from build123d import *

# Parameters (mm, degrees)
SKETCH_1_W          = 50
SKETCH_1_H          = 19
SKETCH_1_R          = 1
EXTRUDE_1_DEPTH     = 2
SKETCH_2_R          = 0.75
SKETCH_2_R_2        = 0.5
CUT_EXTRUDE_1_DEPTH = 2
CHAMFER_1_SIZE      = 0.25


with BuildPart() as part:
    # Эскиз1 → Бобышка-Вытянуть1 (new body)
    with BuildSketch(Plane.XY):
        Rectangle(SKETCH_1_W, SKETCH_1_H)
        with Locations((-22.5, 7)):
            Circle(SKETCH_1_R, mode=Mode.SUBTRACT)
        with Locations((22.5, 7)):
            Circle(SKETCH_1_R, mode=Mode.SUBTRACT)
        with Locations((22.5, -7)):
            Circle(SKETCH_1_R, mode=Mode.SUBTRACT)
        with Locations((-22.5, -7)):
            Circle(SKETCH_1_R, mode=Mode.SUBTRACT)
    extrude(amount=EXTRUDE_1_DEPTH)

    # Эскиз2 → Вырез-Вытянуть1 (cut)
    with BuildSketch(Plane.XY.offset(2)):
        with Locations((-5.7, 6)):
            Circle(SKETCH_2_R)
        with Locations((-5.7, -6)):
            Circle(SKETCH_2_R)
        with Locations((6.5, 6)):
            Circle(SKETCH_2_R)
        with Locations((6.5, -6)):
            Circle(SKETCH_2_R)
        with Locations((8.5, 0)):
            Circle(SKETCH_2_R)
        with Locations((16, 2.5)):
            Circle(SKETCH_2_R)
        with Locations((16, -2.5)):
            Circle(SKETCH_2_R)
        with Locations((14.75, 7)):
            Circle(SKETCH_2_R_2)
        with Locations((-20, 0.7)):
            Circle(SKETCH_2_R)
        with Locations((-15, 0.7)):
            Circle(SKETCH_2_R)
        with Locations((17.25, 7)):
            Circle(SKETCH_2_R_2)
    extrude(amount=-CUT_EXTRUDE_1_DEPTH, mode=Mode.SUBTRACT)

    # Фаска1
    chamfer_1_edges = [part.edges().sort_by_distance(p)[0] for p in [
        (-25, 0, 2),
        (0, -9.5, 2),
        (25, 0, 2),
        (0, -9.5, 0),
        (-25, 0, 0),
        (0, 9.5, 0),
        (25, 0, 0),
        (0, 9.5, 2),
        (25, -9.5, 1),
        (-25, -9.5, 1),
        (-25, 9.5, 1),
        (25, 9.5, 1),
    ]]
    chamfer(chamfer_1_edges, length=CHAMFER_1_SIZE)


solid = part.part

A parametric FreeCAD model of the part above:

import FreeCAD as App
import Part
import Sketcher
from FreeCAD import Vector


def edges_at(feature, points):
    """Names of the edges that pass closest to the given points."""
    edges = feature.Shape.Edges
    near = lambda p: min(range(len(edges)), key=lambda i: edges[i].distToShape(Part.Vertex(*p))[0])
    return sorted({f"Edge{near(p) + 1}" for p in points})

doc = App.newDocument("Part")
body = doc.addObject("PartDesign::Body", "Body")

# Sketch on XY plane
sketch1 = body.newObject("Sketcher::SketchObject", "Sketch")
sketch1.AttachmentSupport = (doc.getObject("XY_Plane"), [""])
sketch1.MapMode = "FlatFace"
sketch1.addGeometry(Part.LineSegment(Vector(-25, 9.5, 0), Vector(-25, -9.5, 0)), False)
sketch1.addGeometry(Part.LineSegment(Vector(-25, -9.5, 0), Vector(25, -9.5, 0)), False)
sketch1.addGeometry(Part.LineSegment(Vector(25, -9.5, 0), Vector(25, 9.5, 0)), False)
sketch1.addGeometry(Part.LineSegment(Vector(25, 9.5, 0), Vector(-25, 9.5, 0)), False)
sketch1.addGeometry(Part.Circle(Vector(-22.5, -7, 0), Vector(0, 0, 1), 1), False)
sketch1.addGeometry(Part.Circle(Vector(22.5, -7, 0), Vector(0, 0, 1), 1), False)
sketch1.addGeometry(Part.Circle(Vector(-22.5, 7, 0), Vector(0, 0, 1), 1), False)
sketch1.addGeometry(Part.Circle(Vector(22.5, 7, 0), Vector(0, 0, 1), 1), False)
sketch1.addConstraint(Sketcher.Constraint("Coincident", 0, 2, 1, 1))
sketch1.addConstraint(Sketcher.Constraint("Coincident", 1, 2, 2, 1))
sketch1.addConstraint(Sketcher.Constraint("Coincident", 2, 2, 3, 1))
sketch1.addConstraint(Sketcher.Constraint("Coincident", 3, 2, 0, 1))
sketch1.addConstraint(Sketcher.Constraint("Vertical", 0))
sketch1.addConstraint(Sketcher.Constraint("Horizontal", 1))
sketch1.addConstraint(Sketcher.Constraint("Vertical", 2))
sketch1.addConstraint(Sketcher.Constraint("Horizontal", 3))
sketch1.addConstraint(Sketcher.Constraint("Equal", 4, 5))
sketch1.addConstraint(Sketcher.Constraint("Equal", 5, 6))
sketch1.addConstraint(Sketcher.Constraint("Equal", 6, 7))
sketch1.addConstraint(Sketcher.Constraint("Symmetric", 5, 3, 6, 3, -1, 1))
sketch1.addConstraint(Sketcher.Constraint("Symmetric", 4, 3, 7, 3, -1, 1))
sketch1.addConstraint(Sketcher.Constraint("Symmetric", 0, 2, 2, 2, -1, 1))
sketch1.addConstraint(Sketcher.Constraint("Symmetric", 4, 3, 5, 3, -2))
sketch1.addConstraint(Sketcher.Constraint("Diameter", 4, 2.0))
sketch1.addConstraint(Sketcher.Constraint("DistanceX", 1, 1, 1, 2, 50.0))
sketch1.addConstraint(Sketcher.Constraint("DistanceY", 0, 2, 0, 1, 19.0))
sketch1.addConstraint(Sketcher.Constraint("DistanceY", 4, 3, -1, 1, 7.0))
sketch1.addConstraint(Sketcher.Constraint("DistanceX", 4, 3, 5, 3, 45.0))
pad1 = body.newObject("PartDesign::Pad", "Pad")
pad1.Profile = sketch1
pad1.Length = 2

# Sketch on XY plane
sketch2 = body.newObject("Sketcher::SketchObject", "Sketch001")
sketch2.AttachmentSupport = (doc.getObject("XY_Plane"), [""])
sketch2.MapMode = "FlatFace"
sketch2.AttachmentOffset = App.Placement(Vector(0, 0, 2), App.Rotation())
sketch2.addGeometry(Part.Circle(Vector(-5.7, 6, 0), Vector(0, 0, 1), 0.8), False)
sketch2.addGeometry(Part.Circle(Vector(-5.7, -6, 0), Vector(0, 0, 1), 0.8), False)
sketch2.addGeometry(Part.Circle(Vector(6.5, 6, 0), Vector(0, 0, 1), 0.8), False)
sketch2.addGeometry(Part.Circle(Vector(6.5, -6, 0), Vector(0, 0, 1), 0.8), False)
sketch2.addGeometry(Part.Circle(Vector(8.5, 0, 0), Vector(0, 0, 1), 0.8), False)
sketch2.addGeometry(Part.Circle(Vector(16, 2.5, 0), Vector(0, 0, 1), 0.8), False)
sketch2.addGeometry(Part.Circle(Vector(16, -2.5, 0), Vector(0, 0, 1), 0.8), False)
sketch2.addGeometry(Part.Circle(Vector(14.8, 7, 0), Vector(0, 0, 1), 0.5), False)
sketch2.addGeometry(Part.Circle(Vector(-20, 0.7, 0), Vector(0, 0, 1), 0.8), False)
sketch2.addGeometry(Part.Circle(Vector(-15, 0.7, 0), Vector(0, 0, 1), 0.8), False)
sketch2.addGeometry(Part.Circle(Vector(17.2, 7, 0), Vector(0, 0, 1), 0.5), False)
sketch2.addConstraint(Sketcher.Constraint("Equal", 0, 1))
sketch2.addConstraint(Sketcher.Constraint("Equal", 1, 2))
sketch2.addConstraint(Sketcher.Constraint("Equal", 2, 3))
sketch2.addConstraint(Sketcher.Constraint("Equal", 3, 4))
sketch2.addConstraint(Sketcher.Constraint("Equal", 4, 5))
sketch2.addConstraint(Sketcher.Constraint("Equal", 5, 6))
sketch2.addConstraint(Sketcher.Constraint("Equal", 6, 8))
sketch2.addConstraint(Sketcher.Constraint("Equal", 8, 9))
sketch2.addConstraint(Sketcher.Constraint("Equal", 7, 10))
sketch2.addConstraint(Sketcher.Constraint("Symmetric", 0, 3, 1, 3, -1))
sketch2.addConstraint(Sketcher.Constraint("Symmetric", 2, 3, 3, 3, -1))
sketch2.addConstraint(Sketcher.Constraint("Symmetric", 5, 3, 6, 3, -1))
sketch2.addConstraint(Sketcher.Constraint("PointOnObject", 4, 3, -1))
sketch2.addConstraint(Sketcher.Constraint("Horizontal", 0, 3, 2, 3))
sketch2.addConstraint(Sketcher.Constraint("Horizontal", 8, 3, 9, 3))
sketch2.addConstraint(Sketcher.Constraint("Horizontal", 7, 3, 10, 3))
sketch2.addConstraint(Sketcher.Constraint("Diameter", 7, 1.0))
sketch2.addConstraint(Sketcher.Constraint("Diameter", 0, 1.5))
sketch2.addConstraint(Sketcher.Constraint("DistanceY", -1, 1, 0, 3, 6.0))
sketch2.addConstraint(Sketcher.Constraint("DistanceX", -1, 1, 5, 3, 16.0))
sketch2.addConstraint(Sketcher.Constraint("DistanceY", -1, 1, 7, 3, 7.0))
sketch2.addConstraint(Sketcher.Constraint("DistanceX", 8, 3, -1, 1, 20.0))
sketch2.addConstraint(Sketcher.Constraint("DistanceX", 9, 3, -1, 1, 15.0))
sketch2.addConstraint(Sketcher.Constraint("DistanceX", 2, 3, 4, 3, 2.0))
sketch2.addConstraint(Sketcher.Constraint("DistanceY", 6, 3, 5, 3, 5.0))
sketch2.addConstraint(Sketcher.Constraint("DistanceX", 0, 3, -1, 1, 5.7))
sketch2.addConstraint(Sketcher.Constraint("DistanceX", -1, 1, 2, 3, 6.5))
sketch2.addConstraint(Sketcher.Constraint("DistanceY", -1, 1, 8, 3, 0.7))
sketch2.addConstraint(Sketcher.Constraint("DistanceX", 7, 3, 10, 3, 2.5))
sketch2.addConstraint(Sketcher.Constraint("DistanceX", -1, 1, 7, 3, 14.75))
pocket1 = body.newObject("PartDesign::Pocket", "Pocket")
pocket1.Profile = sketch2
pocket1.Length = 2
doc.recompute()

chamfer = body.newObject("PartDesign::Chamfer", "Chamfer")
chamfer.Base = (pocket1, edges_at(pocket1, [
    (-25, 0, 2),
    (0, -9.5, 2),
    (25, 0, 2),
    (0, -9.5, 0),
    (-25, 0, 0),
    (0, 9.5, 0),
    (25, 0, 0),
    (0, 9.5, 2),
    (25, -9.5, 1),
    (-25, -9.5, 1),
    (-25, 9.5, 1),
    (25, 9.5, 1),
]))
chamfer.Size = 0.25

doc.recompute()
